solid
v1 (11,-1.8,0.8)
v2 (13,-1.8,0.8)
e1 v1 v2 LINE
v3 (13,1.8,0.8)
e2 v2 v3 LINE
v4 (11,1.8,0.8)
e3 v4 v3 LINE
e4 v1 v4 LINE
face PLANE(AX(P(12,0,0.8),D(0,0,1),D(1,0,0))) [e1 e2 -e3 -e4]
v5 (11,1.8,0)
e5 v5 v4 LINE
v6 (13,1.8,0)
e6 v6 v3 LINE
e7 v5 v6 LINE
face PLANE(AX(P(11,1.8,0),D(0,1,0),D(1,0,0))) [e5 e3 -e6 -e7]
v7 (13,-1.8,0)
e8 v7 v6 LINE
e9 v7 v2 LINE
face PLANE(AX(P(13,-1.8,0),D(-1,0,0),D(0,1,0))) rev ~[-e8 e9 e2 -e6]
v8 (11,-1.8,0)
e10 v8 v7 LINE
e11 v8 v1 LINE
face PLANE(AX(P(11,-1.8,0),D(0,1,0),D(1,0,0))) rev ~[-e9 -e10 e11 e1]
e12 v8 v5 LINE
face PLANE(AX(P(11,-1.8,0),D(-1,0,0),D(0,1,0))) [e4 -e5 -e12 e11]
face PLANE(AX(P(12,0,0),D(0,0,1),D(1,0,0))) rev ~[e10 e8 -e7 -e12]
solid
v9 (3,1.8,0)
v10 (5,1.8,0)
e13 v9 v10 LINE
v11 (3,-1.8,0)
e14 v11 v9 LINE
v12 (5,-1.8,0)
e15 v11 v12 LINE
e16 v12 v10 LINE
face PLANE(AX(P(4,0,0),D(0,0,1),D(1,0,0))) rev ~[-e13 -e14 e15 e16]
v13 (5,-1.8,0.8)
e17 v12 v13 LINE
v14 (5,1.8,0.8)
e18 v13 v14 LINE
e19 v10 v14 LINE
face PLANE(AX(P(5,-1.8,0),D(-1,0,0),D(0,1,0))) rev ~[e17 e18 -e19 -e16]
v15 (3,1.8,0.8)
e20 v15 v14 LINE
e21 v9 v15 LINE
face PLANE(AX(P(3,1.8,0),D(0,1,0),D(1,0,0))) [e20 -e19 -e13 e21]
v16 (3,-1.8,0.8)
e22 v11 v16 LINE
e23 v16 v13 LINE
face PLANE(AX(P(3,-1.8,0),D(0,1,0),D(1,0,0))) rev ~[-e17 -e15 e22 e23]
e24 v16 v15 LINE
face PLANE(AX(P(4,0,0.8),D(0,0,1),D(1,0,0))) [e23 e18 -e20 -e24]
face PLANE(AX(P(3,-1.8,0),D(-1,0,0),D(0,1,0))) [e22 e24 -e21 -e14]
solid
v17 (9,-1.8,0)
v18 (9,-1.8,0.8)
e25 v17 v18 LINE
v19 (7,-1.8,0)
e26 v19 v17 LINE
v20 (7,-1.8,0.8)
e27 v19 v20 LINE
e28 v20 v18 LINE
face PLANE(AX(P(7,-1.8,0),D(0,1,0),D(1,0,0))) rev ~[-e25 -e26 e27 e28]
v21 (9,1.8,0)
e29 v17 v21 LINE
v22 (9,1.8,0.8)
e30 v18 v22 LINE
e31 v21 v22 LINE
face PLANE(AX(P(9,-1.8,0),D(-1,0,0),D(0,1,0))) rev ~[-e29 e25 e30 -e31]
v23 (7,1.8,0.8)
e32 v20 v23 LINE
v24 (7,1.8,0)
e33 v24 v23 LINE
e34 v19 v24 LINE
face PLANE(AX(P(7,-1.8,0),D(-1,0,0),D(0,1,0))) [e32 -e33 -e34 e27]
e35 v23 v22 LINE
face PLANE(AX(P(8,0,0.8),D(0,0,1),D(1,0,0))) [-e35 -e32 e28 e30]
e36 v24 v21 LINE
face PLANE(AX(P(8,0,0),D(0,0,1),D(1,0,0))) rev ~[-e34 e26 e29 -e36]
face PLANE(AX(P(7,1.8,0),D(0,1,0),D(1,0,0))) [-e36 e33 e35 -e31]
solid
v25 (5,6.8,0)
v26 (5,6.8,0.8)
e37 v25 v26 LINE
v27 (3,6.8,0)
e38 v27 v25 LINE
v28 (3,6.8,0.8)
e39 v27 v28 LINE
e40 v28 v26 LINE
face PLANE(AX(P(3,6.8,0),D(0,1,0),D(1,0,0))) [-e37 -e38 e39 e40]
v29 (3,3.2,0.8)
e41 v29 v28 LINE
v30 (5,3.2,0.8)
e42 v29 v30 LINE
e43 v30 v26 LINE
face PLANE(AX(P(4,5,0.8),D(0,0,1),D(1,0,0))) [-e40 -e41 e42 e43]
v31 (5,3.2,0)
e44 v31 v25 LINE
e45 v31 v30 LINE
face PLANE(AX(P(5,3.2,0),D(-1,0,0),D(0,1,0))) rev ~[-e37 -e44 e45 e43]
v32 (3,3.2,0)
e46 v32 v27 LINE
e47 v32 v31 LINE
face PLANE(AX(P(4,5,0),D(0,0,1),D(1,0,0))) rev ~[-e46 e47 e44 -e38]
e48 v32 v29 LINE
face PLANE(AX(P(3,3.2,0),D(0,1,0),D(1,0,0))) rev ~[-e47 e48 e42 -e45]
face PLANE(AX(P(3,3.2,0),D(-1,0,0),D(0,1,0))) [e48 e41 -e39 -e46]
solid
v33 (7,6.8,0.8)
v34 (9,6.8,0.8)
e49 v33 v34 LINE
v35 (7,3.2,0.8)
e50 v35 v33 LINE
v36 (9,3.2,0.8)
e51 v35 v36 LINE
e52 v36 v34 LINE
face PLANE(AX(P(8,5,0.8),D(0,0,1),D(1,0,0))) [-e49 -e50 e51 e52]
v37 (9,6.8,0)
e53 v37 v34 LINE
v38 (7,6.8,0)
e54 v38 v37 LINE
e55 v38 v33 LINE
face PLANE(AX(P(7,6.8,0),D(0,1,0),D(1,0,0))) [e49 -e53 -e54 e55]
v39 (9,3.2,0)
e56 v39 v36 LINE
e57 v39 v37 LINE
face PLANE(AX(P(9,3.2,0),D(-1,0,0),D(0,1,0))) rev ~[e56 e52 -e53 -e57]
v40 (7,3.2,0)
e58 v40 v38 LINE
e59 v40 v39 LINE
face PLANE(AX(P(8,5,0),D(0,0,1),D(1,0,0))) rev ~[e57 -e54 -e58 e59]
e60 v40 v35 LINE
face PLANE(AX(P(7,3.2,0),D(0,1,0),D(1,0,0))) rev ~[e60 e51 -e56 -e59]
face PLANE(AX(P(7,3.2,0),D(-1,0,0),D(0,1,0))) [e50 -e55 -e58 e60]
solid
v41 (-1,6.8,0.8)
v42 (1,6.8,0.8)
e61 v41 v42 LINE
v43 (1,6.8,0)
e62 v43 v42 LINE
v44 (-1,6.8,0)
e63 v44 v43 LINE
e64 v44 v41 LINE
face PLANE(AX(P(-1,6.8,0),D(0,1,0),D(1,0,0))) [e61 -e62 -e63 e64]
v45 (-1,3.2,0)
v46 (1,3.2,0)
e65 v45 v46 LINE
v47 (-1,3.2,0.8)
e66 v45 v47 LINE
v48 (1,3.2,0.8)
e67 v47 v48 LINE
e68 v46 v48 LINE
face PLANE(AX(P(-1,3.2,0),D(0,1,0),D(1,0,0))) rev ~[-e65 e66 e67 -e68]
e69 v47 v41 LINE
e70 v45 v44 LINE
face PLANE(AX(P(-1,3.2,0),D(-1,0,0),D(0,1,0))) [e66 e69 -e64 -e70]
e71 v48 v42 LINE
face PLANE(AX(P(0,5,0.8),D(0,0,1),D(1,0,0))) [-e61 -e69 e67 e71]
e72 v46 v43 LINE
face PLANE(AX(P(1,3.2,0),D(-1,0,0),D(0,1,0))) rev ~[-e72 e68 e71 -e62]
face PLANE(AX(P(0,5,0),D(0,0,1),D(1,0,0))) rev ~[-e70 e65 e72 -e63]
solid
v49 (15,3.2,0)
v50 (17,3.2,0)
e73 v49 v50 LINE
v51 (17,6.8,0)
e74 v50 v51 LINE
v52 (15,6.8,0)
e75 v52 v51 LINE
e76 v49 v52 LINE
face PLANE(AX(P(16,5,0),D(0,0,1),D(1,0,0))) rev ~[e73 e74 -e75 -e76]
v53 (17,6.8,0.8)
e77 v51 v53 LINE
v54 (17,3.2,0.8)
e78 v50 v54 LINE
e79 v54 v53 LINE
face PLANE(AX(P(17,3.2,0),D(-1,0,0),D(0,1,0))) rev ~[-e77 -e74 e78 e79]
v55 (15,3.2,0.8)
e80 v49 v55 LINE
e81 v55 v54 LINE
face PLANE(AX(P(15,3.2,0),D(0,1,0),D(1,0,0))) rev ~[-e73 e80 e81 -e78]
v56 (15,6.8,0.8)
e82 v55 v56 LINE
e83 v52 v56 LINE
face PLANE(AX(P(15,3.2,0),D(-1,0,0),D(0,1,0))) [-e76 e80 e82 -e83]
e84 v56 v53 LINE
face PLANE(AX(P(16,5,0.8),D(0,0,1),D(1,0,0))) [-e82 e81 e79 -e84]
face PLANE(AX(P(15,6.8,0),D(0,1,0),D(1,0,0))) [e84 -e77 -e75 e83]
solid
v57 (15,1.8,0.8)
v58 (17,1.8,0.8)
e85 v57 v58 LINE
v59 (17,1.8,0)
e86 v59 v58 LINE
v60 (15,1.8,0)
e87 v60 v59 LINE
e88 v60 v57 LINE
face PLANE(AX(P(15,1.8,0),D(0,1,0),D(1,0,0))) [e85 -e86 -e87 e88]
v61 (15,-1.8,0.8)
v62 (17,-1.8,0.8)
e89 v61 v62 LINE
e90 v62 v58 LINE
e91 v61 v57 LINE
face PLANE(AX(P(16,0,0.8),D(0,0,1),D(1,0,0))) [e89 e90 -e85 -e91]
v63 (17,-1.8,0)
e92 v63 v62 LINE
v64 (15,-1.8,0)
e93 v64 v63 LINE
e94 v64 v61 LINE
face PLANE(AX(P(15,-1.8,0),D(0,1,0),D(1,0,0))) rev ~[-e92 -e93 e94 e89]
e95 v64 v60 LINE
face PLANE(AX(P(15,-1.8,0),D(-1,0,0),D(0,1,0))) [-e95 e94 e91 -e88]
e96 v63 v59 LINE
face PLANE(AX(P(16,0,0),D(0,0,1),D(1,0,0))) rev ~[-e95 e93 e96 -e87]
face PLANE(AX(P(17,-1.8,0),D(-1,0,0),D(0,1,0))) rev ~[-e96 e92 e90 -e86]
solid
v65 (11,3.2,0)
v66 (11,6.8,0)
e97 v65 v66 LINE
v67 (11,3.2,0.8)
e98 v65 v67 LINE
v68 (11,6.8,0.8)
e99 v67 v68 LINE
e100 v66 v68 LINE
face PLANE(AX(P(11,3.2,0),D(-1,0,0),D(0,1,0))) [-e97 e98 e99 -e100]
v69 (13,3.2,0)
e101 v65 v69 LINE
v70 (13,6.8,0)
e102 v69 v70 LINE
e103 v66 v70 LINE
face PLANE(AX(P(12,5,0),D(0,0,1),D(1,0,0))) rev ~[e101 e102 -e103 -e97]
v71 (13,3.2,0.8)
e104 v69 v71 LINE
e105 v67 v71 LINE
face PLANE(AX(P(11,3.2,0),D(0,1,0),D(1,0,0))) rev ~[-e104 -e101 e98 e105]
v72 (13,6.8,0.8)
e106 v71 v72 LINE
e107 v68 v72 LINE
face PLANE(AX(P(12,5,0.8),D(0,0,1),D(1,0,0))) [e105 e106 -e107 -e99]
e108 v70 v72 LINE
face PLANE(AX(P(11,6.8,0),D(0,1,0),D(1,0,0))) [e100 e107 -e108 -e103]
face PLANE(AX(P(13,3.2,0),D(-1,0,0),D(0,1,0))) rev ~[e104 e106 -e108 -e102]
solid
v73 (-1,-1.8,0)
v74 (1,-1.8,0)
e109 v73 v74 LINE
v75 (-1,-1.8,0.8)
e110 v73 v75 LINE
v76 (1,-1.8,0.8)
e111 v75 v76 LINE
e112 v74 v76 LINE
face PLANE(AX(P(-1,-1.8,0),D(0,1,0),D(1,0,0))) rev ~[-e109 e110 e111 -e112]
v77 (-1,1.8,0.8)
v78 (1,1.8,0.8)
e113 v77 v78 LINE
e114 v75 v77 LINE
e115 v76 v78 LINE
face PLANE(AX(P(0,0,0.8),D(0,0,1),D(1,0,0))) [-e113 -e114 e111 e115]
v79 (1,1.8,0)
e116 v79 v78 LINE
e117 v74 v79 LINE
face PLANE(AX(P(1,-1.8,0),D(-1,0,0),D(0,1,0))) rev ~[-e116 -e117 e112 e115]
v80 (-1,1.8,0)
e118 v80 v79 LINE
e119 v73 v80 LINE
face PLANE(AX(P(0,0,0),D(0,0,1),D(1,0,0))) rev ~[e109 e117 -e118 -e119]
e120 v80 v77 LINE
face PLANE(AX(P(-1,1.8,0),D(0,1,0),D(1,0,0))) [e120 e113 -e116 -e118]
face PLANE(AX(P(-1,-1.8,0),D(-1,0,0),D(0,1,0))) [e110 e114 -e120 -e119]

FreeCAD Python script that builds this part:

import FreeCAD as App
import Part
import Sketcher

V = App.Vector
Q = App.Units.Quantity


def add_polygon(sketch, points):
    """Adds a closed chain of lines whose ends are joined by coincident constraints."""
    first, n = sketch.GeometryCount, len(points)
    for a, b in zip(points, points[1:] + points[:1]):
        sketch.addGeometry(Part.LineSegment(App.Vector(*a, 0), App.Vector(*b, 0)), False)
    for i in range(n):
        sketch.addConstraint(Sketcher.Constraint("Coincident", first + i, 2, first + (i + 1) % n, 1))

doc = App.newDocument("Part")
params = doc.addObject("Spreadsheet::Sheet", "Params")
for row, (alias, value) in enumerate([
    ("sketch1_width", "2 mm"),
    ("sketch1_height", "3.6 mm"),
    ("pad1_length", "0.8 mm"),
    ("sketch2_width", "2 mm"),
    ("sketch2_height", "3.6 mm"),
    ("pad2_length", "0.8 mm"),
    ("sketch3_width", "2 mm"),
    ("sketch3_height", "3.6 mm"),
    ("pad3_length", "0.8 mm"),
    ("sketch4_width", "2 mm"),
    ("sketch4_height", "3.6 mm"),
    ("pad4_length", "0.8 mm"),
    ("sketch5_width", "2 mm"),
    ("sketch5_height", "3.6 mm"),
    ("pad5_length", "0.8 mm"),
    ("sketch6_width", "2 mm"),
    ("sketch6_height", "3.6 mm"),
    ("pad6_length", "0.8 mm"),
    ("sketch7_width", "2 mm"),
    ("sketch7_height", "3.6 mm"),
    ("pad7_length", "0.8 mm"),
    ("sketch8_width", "2 mm"),
    ("sketch8_height", "3.6 mm"),
    ("pad8_length", "0.8 mm"),
    ("sketch9_width", "2 mm"),
    ("sketch9_height", "3.6 mm"),
    ("pad9_length", "0.8 mm"),
    ("sketch10_width", "2 mm"),
    ("sketch10_height", "3.6 mm"),
    ("pad10_length", "0.8 mm"),
], start=1):
    params.set(f"A{row}", alias)
    params.set(f"B{row}", "=" + value)
    params.setAlias(f"B{row}", alias)

body = doc.addObject("PartDesign::Body", "Body")

# Sketch on XY plane
sketch1 = body.newObject("Sketcher::SketchObject", "Sketch")
sketch1.AttachmentSupport = (doc.getObject("XY_Plane"), [""])
sketch1.MapMode = "FlatFace"
add_polygon(sketch1, [(3, 1.8), (3, -1.8), (5, -1.8), (5, 1.8)])  # lines 0-3
sketch1.addConstraint([
    Sketcher.Constraint("Vertical", 0),
    Sketcher.Constraint("Horizontal", 1),
    Sketcher.Constraint("Vertical", 2),
    Sketcher.Constraint("Horizontal", 3),
    Sketcher.Constraint("DistanceX", 1, 1, 1, 2, Q("2 mm")),
    Sketcher.Constraint("DistanceY", 0, 2, 0, 1, Q("3.6 mm")),
    Sketcher.Constraint("DistanceX", -1, 1, 0, 2, Q("3 mm")),
    Sketcher.Constraint("DistanceY", 0, 2, -1, 1, Q("1.8 mm")),
])
sketch1.setExpression("Constraints[8]", "Params.sketch1_width")
sketch1.setExpression("Constraints[9]", "Params.sketch1_height")
pad1 = body.newObject("PartDesign::Pad", "Pad")
pad1.Profile = sketch1
pad1.setExpression("Length", "Params.pad1_length")
body2 = doc.addObject("PartDesign::Body", "Body001")

# Sketch on XY plane
sketch2 = body2.newObject("Sketcher::SketchObject", "Sketch001")
sketch2.AttachmentSupport = (doc.getObject("XY_Plane001"), [""])
sketch2.MapMode = "FlatFace"
add_polygon(sketch2, [(-1, 1.8), (-1, -1.8), (1, -1.8), (1, 1.8)])  # lines 0-3
sketch2.addConstraint([
    Sketcher.Constraint("Vertical", 0),
    Sketcher.Constraint("Horizontal", 1),
    Sketcher.Constraint("Vertical", 2),
    Sketcher.Constraint("Horizontal", 3),
    Sketcher.Constraint("Symmetric", 0, 2, 2, 2, -1, 1),
    Sketcher.Constraint("DistanceX", 1, 1, 1, 2, Q("2 mm")),
    Sketcher.Constraint("DistanceY", 0, 2, 0, 1, Q("3.6 mm")),
])
sketch2.setExpression("Constraints[9]", "Params.sketch2_width")
sketch2.setExpression("Constraints[10]", "Params.sketch2_height")
pad2 = body2.newObject("PartDesign::Pad", "Pad001")
pad2.Profile = sketch2
pad2.setExpression("Length", "Params.pad2_length")
body3 = doc.addObject("PartDesign::Body", "Body002")

# Sketch on XY plane
sketch3 = body3.newObject("Sketcher::SketchObject", "Sketch002")
sketch3.AttachmentSupport = (doc.getObject("XY_Plane002"), [""])
sketch3.MapMode = "FlatFace"
add_polygon(sketch3, [(7, 1.8), (7, -1.8), (9, -1.8), (9, 1.8)])  # lines 0-3
sketch3.addConstraint([
    Sketcher.Constraint("Vertical", 0),
    Sketcher.Constraint("Horizontal", 1),
    Sketcher.Constraint("Vertical", 2),
    Sketcher.Constraint("Horizontal", 3),
    Sketcher.Constraint("DistanceX", 1, 1, 1, 2, Q("2 mm")),
    Sketcher.Constraint("DistanceY", 0, 2, 0, 1, Q("3.6 mm")),
    Sketcher.Constraint("DistanceX", -1, 1, 0, 2, Q("7 mm")),
    Sketcher.Constraint("DistanceY", 0, 2, -1, 1, Q("1.8 mm")),
])
sketch3.setExpression("Constraints[8]", "Params.sketch3_width")
sketch3.setExpression("Constraints[9]", "Params.sketch3_height")
pad3 = body3.newObject("PartDesign::Pad", "Pad002")
pad3.Profile = sketch3
pad3.setExpression("Length", "Params.pad3_length")
body4 = doc.addObject("PartDesign::Body", "Body003")

# Sketch on XY plane
sketch4 = body4.newObject("Sketcher::SketchObject", "Sketch003")
sketch4.AttachmentSupport = (doc.getObject("XY_Plane003"), [""])
sketch4.MapMode = "FlatFace"
add_polygon(sketch4, [(11, 1.8), (11, -1.8), (13, -1.8), (13, 1.8)])  # lines 0-3
sketch4.addConstraint([
    Sketcher.Constraint("Vertical", 0),
    Sketcher.Constraint("Horizontal", 1),
    Sketcher.Constraint("Vertical", 2),
    Sketcher.Constraint("Horizontal", 3),
    Sketcher.Constraint("DistanceX", 1, 1, 1, 2, Q("2 mm")),
    Sketcher.Constraint("DistanceY", 0, 2, 0, 1, Q("3.6 mm")),
    Sketcher.Constraint("DistanceX", -1, 1, 0, 2, Q("11 mm")),
    Sketcher.Constraint("DistanceY", 0, 2, -1, 1, Q("1.8 mm")),
])
sketch4.setExpression("Constraints[8]", "Params.sketch4_width")
sketch4.setExpression("Constraints[9]", "Params.sketch4_height")
pad4 = body4.newObject("PartDesign::Pad", "Pad003")
pad4.Profile = sketch4
pad4.setExpression("Length", "Params.pad4_length")
body5 = doc.addObject("PartDesign::Body", "Body004")

# Sketch on XY plane
sketch5 = body5.newObject("Sketcher::SketchObject", "Sketch004")
sketch5.AttachmentSupport = (doc.getObject("XY_Plane004"), [""])
sketch5.MapMode = "FlatFace"
add_polygon(sketch5, [(15, 1.8), (15, -1.8), (17, -1.8), (17, 1.8)])  # lines 0-3
sketch5.addConstraint([
    Sketcher.Constraint("Vertical", 0),
    Sketcher.Constraint("Horizontal", 1),
    Sketcher.Constraint("Vertical", 2),
    Sketcher.Constraint("Horizontal", 3),
    Sketcher.Constraint("DistanceX", 1, 1, 1, 2, Q("2 mm")),
    Sketcher.Constraint("DistanceY", 0, 2, 0, 1, Q("3.6 mm")),
    Sketcher.Constraint("DistanceX", -1, 1, 0, 2, Q("15 mm")),
    Sketcher.Constraint("DistanceY", 0, 2, -1, 1, Q("1.8 mm")),
])
sketch5.setExpression("Constraints[8]", "Params.sketch5_width")
sketch5.setExpression("Constraints[9]", "Params.sketch5_height")
pad5 = body5.newObject("PartDesign::Pad", "Pad004")
pad5.Profile = sketch5
pad5.setExpression("Length", "Params.pad5_length")
body6 = doc.addObject("PartDesign::Body", "Body005")

# Sketch on XY plane
sketch6 = body6.newObject("Sketcher::SketchObject", "Sketch005")
sketch6.AttachmentSupport = (doc.getObject("XY_Plane005"), [""])
sketch6.MapMode = "FlatFace"
add_polygon(sketch6, [(3, 6.8), (3, 3.2), (5, 3.2), (5, 6.8)])  # lines 0-3
sketch6.addConstraint([
    Sketcher.Constraint("Vertical", 0),
    Sketcher.Constraint("Horizontal", 1),
    Sketcher.Constraint("Vertical", 2),
    Sketcher.Constraint("Horizontal", 3),
    Sketcher.Constraint("DistanceX", 1, 1, 1, 2, Q("2 mm")),
    Sketcher.Constraint("DistanceY", 0, 2, 0, 1, Q("3.6 mm")),
    Sketcher.Constraint("DistanceX", -1, 1, 0, 2, Q("3 mm")),
    Sketcher.Constraint("DistanceY", -1, 1, 0, 2, Q("3.2 mm")),
])
sketch6.setExpression("Constraints[8]", "Params.sketch6_width")
sketch6.setExpression("Constraints[9]", "Params.sketch6_height")
pad6 = body6.newObject("PartDesign::Pad", "Pad005")
pad6.Profile = sketch6
pad6.setExpression("Length", "Params.pad6_length")
body7 = doc.addObject("PartDesign::Body", "Body006")

# Sketch on XY plane
sketch7 = body7.newObject("Sketcher::SketchObject", "Sketch006")
sketch7.AttachmentSupport = (doc.getObject("XY_Plane006"), [""])
sketch7.MapMode = "FlatFace"
add_polygon(sketch7, [(7, 6.8), (7, 3.2), (9, 3.2), (9, 6.8)])  # lines 0-3
sketch7.addConstraint([
    Sketcher.Constraint("Vertical", 0),
    Sketcher.Constraint("Horizontal", 1),
    Sketcher.Constraint("Vertical", 2),
    Sketcher.Constraint("Horizontal", 3),
    Sketcher.Constraint("DistanceX", 1, 1, 1, 2, Q("2 mm")),
    Sketcher.Constraint("DistanceY", 0, 2, 0, 1, Q("3.6 mm")),
    Sketcher.Constraint("DistanceX", -1, 1, 0, 2, Q("7 mm")),
    Sketcher.Constraint("DistanceY", -1, 1, 0, 2, Q("3.2 mm")),
])
sketch7.setExpression("Constraints[8]", "Params.sketch7_width")
sketch7.setExpression("Constraints[9]", "Params.sketch7_height")
pad7 = body7.newObject("PartDesign::Pad", "Pad006")
pad7.Profile = sketch7
pad7.setExpression("Length", "Params.pad7_length")
body8 = doc.addObject("PartDesign::Body", "Body007")

# Sketch on XY plane
sketch8 = body8.newObject("Sketcher::SketchObject", "Sketch007")
sketch8.AttachmentSupport = (doc.getObject("XY_Plane007"), [""])
sketch8.MapMode = "FlatFace"
add_polygon(sketch8, [(11, 6.8), (11, 3.2), (13, 3.2), (13, 6.8)])  # lines 0-3
sketch8.addConstraint([
    Sketcher.Constraint("Vertical", 0),
    Sketcher.Constraint("Horizontal", 1),
    Sketcher.Constraint("Vertical", 2),
    Sketcher.Constraint("Horizontal", 3),
    Sketcher.Constraint("DistanceX", 1, 1, 1, 2, Q("2 mm")),
    Sketcher.Constraint("DistanceY", 0, 2, 0, 1, Q("3.6 mm")),
    Sketcher.Constraint("DistanceX", -1, 1, 0, 2, Q("11 mm")),
    Sketcher.Constraint("DistanceY", -1, 1, 0, 2, Q("3.2 mm")),
])
sketch8.setExpression("Constraints[8]", "Params.sketch8_width")
sketch8.setExpression("Constraints[9]", "Params.sketch8_height")
pad8 = body8.newObject("PartDesign::Pad", "Pad007")
pad8.Profile = sketch8
pad8.setExpression("Length", "Params.pad8_length")
body9 = doc.addObject("PartDesign::Body", "Body008")

# Sketch on XY plane
sketch9 = body9.newObject("Sketcher::SketchObject", "Sketch008")
sketch9.AttachmentSupport = (doc.getObject("XY_Plane008"), [""])
sketch9.MapMode = "FlatFace"
add_polygon(sketch9, [(15, 6.8), (15, 3.2), (17, 3.2), (17, 6.8)])  # lines 0-3
sketch9.addConstraint([
    Sketcher.Constraint("Vertical", 0),
    Sketcher.Constraint("Horizontal", 1),
    Sketcher.Constraint("Vertical", 2),
    Sketcher.Constraint("Horizontal", 3),
    Sketcher.Constraint("DistanceX", 1, 1, 1, 2, Q("2 mm")),
    Sketcher.Constraint("DistanceY", 0, 2, 0, 1, Q("3.6 mm")),
    Sketcher.Constraint("DistanceX", -1, 1, 0, 2, Q("15 mm")),
    Sketcher.Constraint("DistanceY", -1, 1, 0, 2, Q("3.2 mm")),
])
sketch9.setExpression("Constraints[8]", "Params.sketch9_width")
sketch9.setExpression("Constraints[9]", "Params.sketch9_height")
pad9 = body9.newObject("PartDesign::Pad", "Pad008")
pad9.Profile = sketch9
pad9.setExpression("Length", "Params.pad9_length")
body10 = doc.addObject("PartDesign::Body", "Body009")

# Sketch on XY plane
sketch10 = body10.newObject("Sketcher::SketchObject", "Sketch009")
sketch10.AttachmentSupport = (doc.getObject("XY_Plane009"), [""])
sketch10.MapMode = "FlatFace"
add_polygon(sketch10, [(-1, 6.8), (-1, 3.2), (1, 3.2), (1, 6.8)])  # lines 0-3
sketch10.addConstraint([
    Sketcher.Constraint("Vertical", 0),
    Sketcher.Constraint("Horizontal", 1),
    Sketcher.Constraint("Vertical", 2),
    Sketcher.Constraint("Horizontal", 3),
    Sketcher.Constraint("DistanceX", 1, 1, 1, 2, Q("2 mm")),
    Sketcher.Constraint("DistanceY", 0, 2, 0, 1, Q("3.6 mm")),
    Sketcher.Constraint("DistanceX", 0, 2, -1, 1, Q("1 mm")),
    Sketcher.Constraint("DistanceY", -1, 1, 0, 2, Q("3.2 mm")),
])
sketch10.setExpression("Constraints[8]", "Params.sketch10_width")
sketch10.setExpression("Constraints[9]", "Params.sketch10_height")
pad10 = body10.newObject("PartDesign::Pad", "Pad009")
pad10.Profile = sketch10
pad10.setExpression("Length", "Params.pad10_length")

doc.recompute()
